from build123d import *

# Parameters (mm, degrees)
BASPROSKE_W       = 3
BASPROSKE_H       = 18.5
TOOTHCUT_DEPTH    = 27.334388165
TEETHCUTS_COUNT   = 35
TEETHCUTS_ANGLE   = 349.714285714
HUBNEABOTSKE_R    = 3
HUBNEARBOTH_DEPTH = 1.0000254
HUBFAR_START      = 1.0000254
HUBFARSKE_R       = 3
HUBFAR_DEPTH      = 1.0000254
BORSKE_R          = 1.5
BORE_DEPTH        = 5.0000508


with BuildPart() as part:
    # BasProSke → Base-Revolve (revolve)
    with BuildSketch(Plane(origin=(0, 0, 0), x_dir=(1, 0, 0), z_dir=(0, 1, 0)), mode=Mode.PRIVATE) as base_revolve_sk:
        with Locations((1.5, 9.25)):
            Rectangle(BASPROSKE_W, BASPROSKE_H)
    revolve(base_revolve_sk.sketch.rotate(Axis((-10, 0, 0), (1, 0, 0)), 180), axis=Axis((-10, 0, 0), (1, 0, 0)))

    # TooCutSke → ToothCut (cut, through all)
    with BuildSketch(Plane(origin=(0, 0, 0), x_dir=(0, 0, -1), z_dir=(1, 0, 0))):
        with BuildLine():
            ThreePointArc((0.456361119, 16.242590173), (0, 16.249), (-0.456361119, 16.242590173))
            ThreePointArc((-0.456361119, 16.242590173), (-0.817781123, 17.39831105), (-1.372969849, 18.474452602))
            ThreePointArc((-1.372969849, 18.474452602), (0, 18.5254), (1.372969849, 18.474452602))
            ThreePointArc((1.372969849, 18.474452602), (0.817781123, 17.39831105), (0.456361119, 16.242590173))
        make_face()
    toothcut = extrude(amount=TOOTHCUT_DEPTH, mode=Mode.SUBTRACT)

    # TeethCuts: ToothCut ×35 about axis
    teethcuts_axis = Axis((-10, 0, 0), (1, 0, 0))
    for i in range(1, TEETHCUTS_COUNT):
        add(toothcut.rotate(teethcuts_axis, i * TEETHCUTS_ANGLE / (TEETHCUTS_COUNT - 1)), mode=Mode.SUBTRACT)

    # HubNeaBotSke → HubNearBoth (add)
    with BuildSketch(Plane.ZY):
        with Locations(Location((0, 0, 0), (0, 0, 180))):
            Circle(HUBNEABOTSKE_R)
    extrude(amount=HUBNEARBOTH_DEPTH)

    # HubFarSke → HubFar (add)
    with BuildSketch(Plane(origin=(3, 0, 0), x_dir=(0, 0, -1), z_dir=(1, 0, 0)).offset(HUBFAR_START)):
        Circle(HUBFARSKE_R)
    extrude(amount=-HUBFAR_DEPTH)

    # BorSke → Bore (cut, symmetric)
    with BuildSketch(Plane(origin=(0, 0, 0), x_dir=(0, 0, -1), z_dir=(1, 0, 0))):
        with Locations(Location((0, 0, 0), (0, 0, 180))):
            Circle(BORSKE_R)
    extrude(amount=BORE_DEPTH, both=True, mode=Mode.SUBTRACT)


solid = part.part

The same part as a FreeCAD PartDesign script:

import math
import FreeCAD as App
import Part
import Sketcher
from FreeCAD import Vector
Q = App.Units.Quantity


def add_polygon(sketch, points):
    """Adds a closed chain of lines whose ends are joined by coincident constraints."""
    first, n = sketch.GeometryCount, len(points)
    for a, b in zip(points, points[1:] + points[:1]):
        sketch.addGeometry(Part.LineSegment(App.Vector(*a, 0), App.Vector(*b, 0)), False)
    for i in range(n):
        sketch.addConstraint(Sketcher.Constraint("Coincident", first + i, 2, first + (i + 1) % n, 1))

doc = App.newDocument("Part")
body = doc.addObject("PartDesign::Body", "Body")

# Sketch on XZ plane
sketch1 = body.newObject("Sketcher::SketchObject", "Sketch")
sketch1.AttachmentSupport = (doc.getObject("XZ_Plane"), [""])
sketch1.MapMode = "FlatFace"
add_polygon(sketch1, [(0, -18.5), (0, 0), (3, 0), (3, -18.5)])  # lines 0-3
sketch1.addConstraint([
    Sketcher.Constraint("Vertical", 0),
    Sketcher.Constraint("Horizontal", 1),
    Sketcher.Constraint("Vertical", 2),
    Sketcher.Constraint("Horizontal", 3),
    Sketcher.Constraint("Coincident", 0, 2, -1, 1),
    Sketcher.Constraint("DistanceX", 1, 1, 1, 2, Q("3 mm")),
    Sketcher.Constraint("DistanceY", 0, 1, 0, 2, Q("18.5 mm")),
])
revolution = body.newObject("PartDesign::Revolution", "Revolution")
revolution.Profile = sketch1
revolution.ReferenceAxis = (sketch1, ["H_Axis"])
revolution.Angle = 360

# Sketch on YZ plane
sketch2 = body.newObject("Sketcher::SketchObject", "Sketch001")
sketch2.AttachmentSupport = (doc.getObject("YZ_Plane"), [""])
sketch2.MapMode = "FlatFace"
sketch2.addGeometry([
    Part.ArcOfCircle(Part.Circle(Vector(0, 0, 0), Vector(0, 0, 1), 16.2), math.radians(-1.61), math.radians(1.61)),
    Part.ArcOfCircle(Part.Circle(Vector(14.7, -7.3, 0), Vector(0, 0, 1), 7), math.radians(57.75), math.radians(77.6)),
    Part.ArcOfCircle(Part.Circle(Vector(0, 0, 0), Vector(0, 0, 1), 18.5), math.radians(-4.25), math.radians(4.25)),
    Part.ArcOfCircle(Part.Circle(Vector(14.7, 7.3, 0), Vector(0, 0, 1), 7), math.radians(-77.6), math.radians(-57.75)),
], False)
sketch2.addConstraint([
    Sketcher.Constraint("Coincident", 0, 1, 1, 2),
    Sketcher.Constraint("Coincident", 1, 1, 2, 1),
    Sketcher.Constraint("Coincident", 2, 2, 3, 2),
    Sketcher.Constraint("Coincident", 3, 1, 0, 2),
    Sketcher.Constraint("Coincident", 0, 3, -1, 1),
    Sketcher.Constraint("Coincident", 2, 3, -1, 1),
    Sketcher.Constraint("Equal", 1, 3),
    Sketcher.Constraint("Symmetric", 1, 3, 3, 3, -1),
    Sketcher.Constraint("Radius", 1, Q("7 mm")),
    Sketcher.Constraint("Radius", 0, Q("16.249 mm")),
    Sketcher.Constraint("Radius", 2, Q("18.5254 mm")),
    Sketcher.Constraint("DistanceY", 1, 3, 1, 1, Q("5.92 mm")),
    Sketcher.Constraint("DistanceX", -1, 1, 1, 3, Q("14.739001 mm")),
])
pocket1 = body.newObject("PartDesign::Pocket", "Pocket")
pocket1.Profile = sketch2
pocket1.Type = "ThroughAll"
pocket1.Reversed = True
doc.recompute()

polarpattern = body.newObject("PartDesign::PolarPattern", "PolarPattern")
polarpattern.Originals = [pocket1]
polarpattern.Axis = (doc.getObject("X_Axis"), [""])
polarpattern.Angle = 360
polarpattern.Occurrences = 35
body.Tip = polarpattern

# Sketch on YZ plane
sketch3 = body.newObject("Sketcher::SketchObject", "Sketch002")
sketch3.AttachmentSupport = (doc.getObject("YZ_Plane"), [""])
sketch3.MapMode = "FlatFace"
sketch3.addGeometry(Part.Circle(Vector(0, 0, 0), Vector(0, 0, 1), 3), False)
sketch3.addConstraint([
    Sketcher.Constraint("Coincident", 0, 3, -1, 1),
    Sketcher.Constraint("Diameter", 0, Q("6 mm")),
])
pad1 = body.newObject("PartDesign::Pad", "Pad")
pad1.Profile = sketch3
pad1.Length = 1.000025
pad1.Reversed = True

# Sketch on YZ plane
sketch4 = body.newObject("Sketcher::SketchObject", "Sketch003")
sketch4.AttachmentSupport = (doc.getObject("YZ_Plane"), [""])
sketch4.MapMode = "FlatFace"
sketch4.AttachmentOffset = App.Placement(Vector(0, 0, 4.000025), App.Rotation())
sketch4.addGeometry(Part.Circle(Vector(0, 0, 0), Vector(0, 0, 1), 3), False)
sketch4.addConstraint([
    Sketcher.Constraint("Coincident", 0, 3, -1, 1),
    Sketcher.Constraint("Diameter", 0, Q("6 mm")),
])
pad2 = body.newObject("PartDesign::Pad", "Pad001")
pad2.Profile = sketch4
pad2.Length = 1.000025
pad2.Reversed = True

# Sketch on YZ plane
sketch5 = body.newObject("Sketcher::SketchObject", "Sketch004")
sketch5.AttachmentSupport = (doc.getObject("YZ_Plane"), [""])
sketch5.MapMode = "FlatFace"
sketch5.addGeometry(Part.Circle(Vector(0, 0, 0), Vector(0, 0, 1), 1.5), False)
sketch5.addConstraint([
    Sketcher.Constraint("Coincident", 0, 3, -1, 1),
    Sketcher.Constraint("Diameter", 0, Q("3 mm")),
])
pocket2 = body.newObject("PartDesign::Pocket", "Pocket001")
pocket2.Profile = sketch5
pocket2.Length = 10.000102
pocket2.Midplane = True

doc.recompute()
